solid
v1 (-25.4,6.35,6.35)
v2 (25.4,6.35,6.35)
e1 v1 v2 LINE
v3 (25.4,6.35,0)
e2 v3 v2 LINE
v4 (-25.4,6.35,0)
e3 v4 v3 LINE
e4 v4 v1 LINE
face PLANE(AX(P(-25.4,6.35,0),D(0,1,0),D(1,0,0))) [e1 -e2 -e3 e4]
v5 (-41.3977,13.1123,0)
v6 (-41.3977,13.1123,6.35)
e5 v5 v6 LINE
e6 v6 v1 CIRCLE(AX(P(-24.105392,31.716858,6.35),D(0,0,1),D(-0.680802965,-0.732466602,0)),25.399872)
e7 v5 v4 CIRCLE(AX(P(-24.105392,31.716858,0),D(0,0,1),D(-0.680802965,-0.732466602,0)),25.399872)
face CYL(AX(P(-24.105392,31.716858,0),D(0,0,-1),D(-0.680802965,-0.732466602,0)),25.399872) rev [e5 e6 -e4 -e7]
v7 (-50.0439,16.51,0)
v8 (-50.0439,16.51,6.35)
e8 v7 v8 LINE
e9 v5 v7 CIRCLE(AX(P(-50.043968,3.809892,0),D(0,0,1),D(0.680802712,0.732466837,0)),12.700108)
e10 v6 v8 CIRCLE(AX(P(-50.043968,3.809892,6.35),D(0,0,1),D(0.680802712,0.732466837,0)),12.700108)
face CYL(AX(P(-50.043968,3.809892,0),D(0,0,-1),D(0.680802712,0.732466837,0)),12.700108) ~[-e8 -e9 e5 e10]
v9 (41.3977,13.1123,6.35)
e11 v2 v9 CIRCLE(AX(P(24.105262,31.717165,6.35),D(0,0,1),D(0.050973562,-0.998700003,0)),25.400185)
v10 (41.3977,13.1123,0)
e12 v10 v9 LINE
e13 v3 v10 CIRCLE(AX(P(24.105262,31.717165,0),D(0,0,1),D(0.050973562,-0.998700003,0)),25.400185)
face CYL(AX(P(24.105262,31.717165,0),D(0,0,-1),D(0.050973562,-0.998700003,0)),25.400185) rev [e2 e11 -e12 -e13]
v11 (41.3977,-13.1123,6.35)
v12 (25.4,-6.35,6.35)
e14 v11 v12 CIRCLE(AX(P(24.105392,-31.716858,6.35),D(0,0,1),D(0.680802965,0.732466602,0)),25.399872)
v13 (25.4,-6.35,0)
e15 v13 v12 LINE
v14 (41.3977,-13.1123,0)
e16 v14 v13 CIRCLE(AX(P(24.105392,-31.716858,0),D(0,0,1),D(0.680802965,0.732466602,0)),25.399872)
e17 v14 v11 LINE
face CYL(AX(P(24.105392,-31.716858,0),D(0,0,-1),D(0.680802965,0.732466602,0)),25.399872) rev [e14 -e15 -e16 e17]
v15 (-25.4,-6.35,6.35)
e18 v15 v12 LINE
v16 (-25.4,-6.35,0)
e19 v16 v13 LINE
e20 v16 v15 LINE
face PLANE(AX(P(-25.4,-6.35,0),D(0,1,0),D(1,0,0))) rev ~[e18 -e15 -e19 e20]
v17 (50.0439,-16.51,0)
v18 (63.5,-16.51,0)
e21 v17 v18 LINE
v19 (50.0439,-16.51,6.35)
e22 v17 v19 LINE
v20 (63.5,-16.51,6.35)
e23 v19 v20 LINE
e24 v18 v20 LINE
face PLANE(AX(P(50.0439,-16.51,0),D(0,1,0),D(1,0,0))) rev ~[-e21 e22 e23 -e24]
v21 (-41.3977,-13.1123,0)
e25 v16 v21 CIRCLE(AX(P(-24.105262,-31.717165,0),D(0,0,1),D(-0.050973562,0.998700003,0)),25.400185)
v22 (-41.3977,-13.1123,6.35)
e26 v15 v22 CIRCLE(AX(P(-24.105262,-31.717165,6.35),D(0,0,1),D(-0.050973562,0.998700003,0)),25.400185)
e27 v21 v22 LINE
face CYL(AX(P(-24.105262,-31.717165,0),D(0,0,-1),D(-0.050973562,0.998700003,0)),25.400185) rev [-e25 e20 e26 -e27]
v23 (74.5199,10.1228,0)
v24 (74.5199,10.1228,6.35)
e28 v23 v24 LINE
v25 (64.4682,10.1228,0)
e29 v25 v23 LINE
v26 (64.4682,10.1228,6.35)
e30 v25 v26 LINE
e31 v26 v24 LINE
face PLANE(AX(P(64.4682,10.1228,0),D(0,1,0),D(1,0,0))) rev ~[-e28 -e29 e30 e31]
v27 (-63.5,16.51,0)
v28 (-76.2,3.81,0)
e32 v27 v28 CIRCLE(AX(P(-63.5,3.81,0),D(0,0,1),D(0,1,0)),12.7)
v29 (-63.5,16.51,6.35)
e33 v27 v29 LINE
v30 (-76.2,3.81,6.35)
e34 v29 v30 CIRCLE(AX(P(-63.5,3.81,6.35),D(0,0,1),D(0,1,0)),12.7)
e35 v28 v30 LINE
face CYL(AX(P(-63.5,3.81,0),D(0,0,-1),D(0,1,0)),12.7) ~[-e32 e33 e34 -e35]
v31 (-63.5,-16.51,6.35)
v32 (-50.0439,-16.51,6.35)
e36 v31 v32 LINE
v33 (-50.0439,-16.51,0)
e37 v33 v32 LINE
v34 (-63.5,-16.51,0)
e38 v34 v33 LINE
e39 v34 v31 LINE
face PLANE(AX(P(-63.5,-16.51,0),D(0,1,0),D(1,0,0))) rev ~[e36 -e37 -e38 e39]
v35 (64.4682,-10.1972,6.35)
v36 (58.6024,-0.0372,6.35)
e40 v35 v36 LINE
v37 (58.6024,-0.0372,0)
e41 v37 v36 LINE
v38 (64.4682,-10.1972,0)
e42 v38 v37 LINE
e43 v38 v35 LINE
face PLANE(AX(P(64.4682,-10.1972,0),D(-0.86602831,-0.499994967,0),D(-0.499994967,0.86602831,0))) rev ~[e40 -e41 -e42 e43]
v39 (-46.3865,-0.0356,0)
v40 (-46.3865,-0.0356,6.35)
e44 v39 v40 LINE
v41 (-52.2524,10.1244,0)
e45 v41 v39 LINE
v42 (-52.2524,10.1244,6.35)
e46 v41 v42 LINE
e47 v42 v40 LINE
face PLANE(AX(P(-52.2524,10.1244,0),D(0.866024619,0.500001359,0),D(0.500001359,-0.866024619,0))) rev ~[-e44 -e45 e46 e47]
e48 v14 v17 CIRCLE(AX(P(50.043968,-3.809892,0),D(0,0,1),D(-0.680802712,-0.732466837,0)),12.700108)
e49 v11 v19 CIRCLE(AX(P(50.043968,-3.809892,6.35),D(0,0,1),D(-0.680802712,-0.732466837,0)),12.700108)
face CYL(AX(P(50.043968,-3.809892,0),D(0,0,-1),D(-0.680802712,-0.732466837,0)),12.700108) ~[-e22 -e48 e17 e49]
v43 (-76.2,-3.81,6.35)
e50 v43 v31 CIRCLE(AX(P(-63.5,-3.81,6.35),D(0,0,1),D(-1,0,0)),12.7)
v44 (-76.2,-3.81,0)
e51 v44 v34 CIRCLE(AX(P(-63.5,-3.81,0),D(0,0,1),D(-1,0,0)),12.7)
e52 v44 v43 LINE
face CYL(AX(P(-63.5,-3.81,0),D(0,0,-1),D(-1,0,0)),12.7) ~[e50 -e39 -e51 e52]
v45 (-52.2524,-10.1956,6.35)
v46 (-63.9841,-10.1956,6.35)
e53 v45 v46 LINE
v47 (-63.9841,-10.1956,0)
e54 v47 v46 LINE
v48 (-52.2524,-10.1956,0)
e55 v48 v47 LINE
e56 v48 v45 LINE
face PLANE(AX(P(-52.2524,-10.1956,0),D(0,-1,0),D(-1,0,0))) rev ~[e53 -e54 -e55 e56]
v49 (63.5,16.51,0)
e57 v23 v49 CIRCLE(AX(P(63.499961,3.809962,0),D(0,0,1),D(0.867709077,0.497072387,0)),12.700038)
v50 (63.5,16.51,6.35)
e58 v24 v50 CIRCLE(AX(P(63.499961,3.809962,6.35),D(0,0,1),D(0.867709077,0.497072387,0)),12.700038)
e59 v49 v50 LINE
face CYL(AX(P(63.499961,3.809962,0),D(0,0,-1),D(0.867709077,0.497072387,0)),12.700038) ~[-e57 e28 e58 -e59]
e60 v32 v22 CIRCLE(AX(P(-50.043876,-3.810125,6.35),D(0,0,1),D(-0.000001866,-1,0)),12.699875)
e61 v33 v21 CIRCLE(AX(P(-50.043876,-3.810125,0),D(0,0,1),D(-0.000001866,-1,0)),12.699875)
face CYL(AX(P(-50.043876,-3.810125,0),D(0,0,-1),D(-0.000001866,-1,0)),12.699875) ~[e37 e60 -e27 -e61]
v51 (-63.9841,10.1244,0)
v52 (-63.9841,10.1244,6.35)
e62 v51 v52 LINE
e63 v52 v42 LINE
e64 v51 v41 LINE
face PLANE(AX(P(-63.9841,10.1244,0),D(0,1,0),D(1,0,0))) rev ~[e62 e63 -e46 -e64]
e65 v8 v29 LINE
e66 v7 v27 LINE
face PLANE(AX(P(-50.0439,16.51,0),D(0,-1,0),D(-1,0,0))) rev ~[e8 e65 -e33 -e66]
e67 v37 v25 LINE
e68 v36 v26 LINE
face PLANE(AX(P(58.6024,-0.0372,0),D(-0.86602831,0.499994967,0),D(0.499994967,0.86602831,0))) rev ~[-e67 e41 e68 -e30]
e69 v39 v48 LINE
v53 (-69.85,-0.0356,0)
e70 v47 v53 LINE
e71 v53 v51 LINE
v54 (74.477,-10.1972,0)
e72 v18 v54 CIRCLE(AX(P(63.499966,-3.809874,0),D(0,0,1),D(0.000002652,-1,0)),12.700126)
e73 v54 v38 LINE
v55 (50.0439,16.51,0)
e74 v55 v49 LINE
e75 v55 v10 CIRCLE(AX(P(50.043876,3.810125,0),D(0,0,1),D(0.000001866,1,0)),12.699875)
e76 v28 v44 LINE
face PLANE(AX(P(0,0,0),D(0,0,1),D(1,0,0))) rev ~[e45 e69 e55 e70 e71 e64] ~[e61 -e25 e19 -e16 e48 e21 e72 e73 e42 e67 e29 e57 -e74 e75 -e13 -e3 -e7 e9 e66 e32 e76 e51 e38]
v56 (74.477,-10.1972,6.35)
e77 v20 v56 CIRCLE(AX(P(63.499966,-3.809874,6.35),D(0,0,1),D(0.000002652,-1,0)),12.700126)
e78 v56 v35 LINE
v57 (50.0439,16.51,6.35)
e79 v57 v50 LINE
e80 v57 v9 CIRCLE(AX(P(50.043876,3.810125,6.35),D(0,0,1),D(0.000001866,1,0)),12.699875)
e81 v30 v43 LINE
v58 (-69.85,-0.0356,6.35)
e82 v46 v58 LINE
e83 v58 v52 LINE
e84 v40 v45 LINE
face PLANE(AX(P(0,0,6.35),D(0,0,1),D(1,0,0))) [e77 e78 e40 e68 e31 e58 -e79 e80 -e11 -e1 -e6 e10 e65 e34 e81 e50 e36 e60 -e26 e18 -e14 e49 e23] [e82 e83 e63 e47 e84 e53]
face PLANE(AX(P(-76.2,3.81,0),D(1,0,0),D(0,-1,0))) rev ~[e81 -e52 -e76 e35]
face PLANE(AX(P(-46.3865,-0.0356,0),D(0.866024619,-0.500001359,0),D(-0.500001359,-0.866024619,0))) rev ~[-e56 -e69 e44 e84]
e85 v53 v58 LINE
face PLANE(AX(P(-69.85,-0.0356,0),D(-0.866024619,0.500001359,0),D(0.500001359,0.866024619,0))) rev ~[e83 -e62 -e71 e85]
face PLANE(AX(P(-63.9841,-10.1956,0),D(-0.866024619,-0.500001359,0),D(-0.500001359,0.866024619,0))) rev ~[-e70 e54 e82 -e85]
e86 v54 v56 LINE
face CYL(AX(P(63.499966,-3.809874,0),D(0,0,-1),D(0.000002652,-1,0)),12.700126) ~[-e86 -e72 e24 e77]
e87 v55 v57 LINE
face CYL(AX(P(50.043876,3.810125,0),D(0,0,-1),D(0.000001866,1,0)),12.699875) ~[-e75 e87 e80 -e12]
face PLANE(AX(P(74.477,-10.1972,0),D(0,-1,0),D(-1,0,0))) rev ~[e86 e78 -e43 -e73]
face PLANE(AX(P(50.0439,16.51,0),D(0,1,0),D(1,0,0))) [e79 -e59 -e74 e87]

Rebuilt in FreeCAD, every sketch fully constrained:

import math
import FreeCAD as App
import Part
import Sketcher

V = App.Vector
Q = App.Units.Quantity


def add_polygon(sketch, points):
    """Adds a closed chain of lines whose ends are joined by coincident constraints."""
    first, n = sketch.GeometryCount, len(points)
    for a, b in zip(points, points[1:] + points[:1]):
        sketch.addGeometry(Part.LineSegment(App.Vector(*a, 0), App.Vector(*b, 0)), False)
    for i in range(n):
        sketch.addConstraint(Sketcher.Constraint("Coincident", first + i, 2, first + (i + 1) % n, 1))

doc = App.newDocument("Part")
params = doc.addObject("Spreadsheet::Sheet", "Params")
for row, (alias, value) in enumerate([
    ("sketch1_radius", "1 in"),
    ("sketch1_radius2", "0.5 in"),
    ("sketch1_width", "2 in"),
    ("pad1_length", "0.25 in"),
], start=1):
    params.set(f"A{row}", alias)
    params.set(f"B{row}", "=" + value)
    params.setAlias(f"B{row}", alias)

body = doc.addObject("PartDesign::Body", "Body")

# Sketch on XY plane
sketch1 = body.newObject("Sketcher::SketchObject", "Sketch")
sketch1.AttachmentSupport = (doc.getObject("XY_Plane"), [""])
sketch1.MapMode = "FlatFace"
sketch1.addGeometry(Part.ArcOfCircle(Part.Circle(V(-50.0439, 3.81, 0), V(0, 0, 1), 12.699983), math.radians(47.093491), math.radians(90)), False)  # 0
sketch1.addGeometry(Part.LineSegment(V(-50.0439, 16.51, 0), V(-63.5, 16.51, 0)), False)  # 1
sketch1.addGeometry(Part.ArcOfCircle(Part.Circle(V(-63.5, 3.81, 0), V(0, 0, 1), 12.7), math.radians(90), math.radians(180)), False)  # 2
sketch1.addGeometry(Part.LineSegment(V(-76.2, 3.81, 0), V(-76.2, -3.81, 0)), False)  # 3
sketch1.addGeometry(Part.ArcOfCircle(Part.Circle(V(-63.5, -3.81, 0), V(0, 0, 1), 12.7), math.radians(180), math.radians(270)), False)  # 4
sketch1.addGeometry(Part.LineSegment(V(-63.5, -16.51, 0), V(-50.0439, -16.51, 0)), False)  # 5
sketch1.addGeometry(Part.ArcOfCircle(Part.Circle(V(-50.0439, -3.81, 0), V(0, 0, 1), 12.7), math.radians(-90), math.radians(-47.093491)), False)  # 6
sketch1.addGeometry(Part.ArcOfCircle(Part.Circle(V(-24.1053, -31.717, 0), V(0, 0, 1), 25.400018), math.radians(92.92177), math.radians(132.906355)), False)  # 7
sketch1.addGeometry(Part.LineSegment(V(-25.4, -6.35, 0), V(25.4, -6.35, 0)), False)  # 8
sketch1.addGeometry(Part.ArcOfCircle(Part.Circle(V(24.1053, -31.717, 0), V(0, 0, 1), 25.400039), math.radians(47.093645), math.radians(87.07823)), False)  # 9
sketch1.addGeometry(Part.ArcOfCircle(Part.Circle(V(50.0439, -3.81, 0), V(0, 0, 1), 12.699983), math.radians(-132.906509), math.radians(-90)), False)  # 10
sketch1.addGeometry(Part.LineSegment(V(50.0439, -16.51, 0), V(63.5, -16.51, 0)), False)  # 11
sketch1.addGeometry(Part.ArcOfCircle(Part.Circle(V(63.5, -3.81, 0), V(0, 0, 1), 12.7), math.radians(-90), math.radians(-30.193892)), False)  # 12
sketch1.addGeometry(Part.LineSegment(V(74.477, -10.1972, 0), V(64.4682, -10.1972, 0)), False)  # 13
sketch1.addGeometry(Part.LineSegment(V(64.4682, -10.1972, 0), V(58.6024, -0.0372, 0)), False)  # 14
sketch1.addGeometry(Part.LineSegment(V(58.6024, -0.0372, 0), V(64.4682, 10.1228, 0)), False)  # 15
sketch1.addGeometry(Part.LineSegment(V(64.4682, 10.1228, 0), V(74.5199, 10.1228, 0)), False)  # 16
sketch1.addGeometry(Part.ArcOfCircle(Part.Circle(V(63.5, 3.81, 0), V(0, 0, 1), 12.699986), math.radians(29.806435), math.radians(90)), False)  # 17
sketch1.addGeometry(Part.LineSegment(V(63.5, 16.51, 0), V(50.0439, 16.51, 0)), False)  # 18
sketch1.addGeometry(Part.ArcOfCircle(Part.Circle(V(50.0439, 3.81, 0), V(0, 0, 1), 12.7), math.radians(90), math.radians(132.906509)), False)  # 19
sketch1.addGeometry(Part.ArcOfCircle(Part.Circle(V(24.1053, 31.717, 0), V(0, 0, 1), 25.400018), math.radians(-87.07823), math.radians(-47.093645)), False)  # 20
sketch1.addGeometry(Part.LineSegment(V(25.4, 6.35, 0), V(-25.4, 6.35, 0)), False)  # 21
sketch1.addGeometry(Part.ArcOfCircle(Part.Circle(V(-24.1053, 31.717, 0), V(0, 0, 1), 25.400039), math.radians(-132.906355), math.radians(-92.92177)), False)  # 22
add_polygon(sketch1, [(-63.9841, 10.1244), (-52.2524, 10.1244), (-46.3865, -0.0356), (-52.2524, -10.1956), (-63.9841, -10.1956), (-69.85, -0.0356)])  # lines 23-28
sketch1.addConstraint(Sketcher.Constraint("Tangent", 0, 2, 1, 1))
sketch1.addConstraint(Sketcher.Constraint("Tangent", 1, 2, 2, 1))
sketch1.addConstraint(Sketcher.Constraint("Tangent", 2, 2, 3, 1))
sketch1.addConstraint(Sketcher.Constraint("Tangent", 3, 2, 4, 1))
sketch1.addConstraint(Sketcher.Constraint("Tangent", 4, 2, 5, 1))
sketch1.addConstraint(Sketcher.Constraint("Tangent", 5, 2, 6, 1))
sketch1.addConstraint(Sketcher.Constraint("Tangent", 6, 2, 7, 2))
sketch1.addConstraint(Sketcher.Constraint("Coincident", 7, 1, 8, 1))
sketch1.addConstraint(Sketcher.Constraint("Coincident", 8, 2, 9, 2))
sketch1.addConstraint(Sketcher.Constraint("Tangent", 9, 1, 10, 1))
sketch1.addConstraint(Sketcher.Constraint("Tangent", 10, 2, 11, 1))
sketch1.addConstraint(Sketcher.Constraint("Tangent", 11, 2, 12, 1))
sketch1.addConstraint(Sketcher.Constraint("Coincident", 12, 2, 13, 1))
sketch1.addConstraint(Sketcher.Constraint("Coincident", 13, 2, 14, 1))
sketch1.addConstraint(Sketcher.Constraint("Coincident", 14, 2, 15, 1))
sketch1.addConstraint(Sketcher.Constraint("Coincident", 15, 2, 16, 1))
sketch1.addConstraint(Sketcher.Constraint("Coincident", 16, 2, 17, 1))
sketch1.addConstraint(Sketcher.Constraint("Tangent", 17, 2, 18, 1))
sketch1.addConstraint(Sketcher.Constraint("Tangent", 18, 2, 19, 1))
sketch1.addConstraint(Sketcher.Constraint("Tangent", 19, 2, 20, 2))
sketch1.addConstraint(Sketcher.Constraint("Coincident", 20, 1, 21, 1))
sketch1.addConstraint(Sketcher.Constraint("Coincident", 21, 2, 22, 2))
sketch1.addConstraint(Sketcher.Constraint("Tangent", 22, 1, 0, 1))
sketch1.addConstraint(Sketcher.Constraint("Horizontal", 1))
sketch1.addConstraint(Sketcher.Constraint("Vertical", 3))
sketch1.addConstraint(Sketcher.Constraint("Horizontal", 5))
sketch1.addConstraint(Sketcher.Constraint("Horizontal", 8))
sketch1.addConstraint(Sketcher.Constraint("Horizontal", 11))
sketch1.addConstraint(Sketcher.Constraint("Horizontal", 13))
sketch1.addConstraint(Sketcher.Constraint("Horizontal", 16))
sketch1.addConstraint(Sketcher.Constraint("Horizontal", 18))
sketch1.addConstraint(Sketcher.Constraint("Horizontal", 21))
sketch1.addConstraint(Sketcher.Constraint("Horizontal", 23))
sketch1.addConstraint(Sketcher.Constraint("Horizontal", 26))
sketch1.addConstraint(Sketcher.Constraint("Equal", 0, 2))
sketch1.addConstraint(Sketcher.Constraint("Equal", 2, 4))
sketch1.addConstraint(Sketcher.Constraint("Equal", 4, 6))
sketch1.addConstraint(Sketcher.Constraint("Equal", 7, 9))
sketch1.addConstraint(Sketcher.Constraint("Equal", 6, 10))
sketch1.addConstraint(Sketcher.Constraint("Equal", 10, 12))
sketch1.addConstraint(Sketcher.Constraint("Equal", 12, 17))
sketch1.addConstraint(Sketcher.Constraint("Equal", 17, 19))
sketch1.addConstraint(Sketcher.Constraint("Equal", 9, 20))
sketch1.addConstraint(Sketcher.Constraint("Equal", 20, 22))
sketch1.addConstraint(Sketcher.Constraint("Symmetric", 0, 3, 10, 3, -1, 1))
sketch1.addConstraint(Sketcher.Constraint("Symmetric", 4, 3, 17, 3, -1, 1))
sketch1.addConstraint(Sketcher.Constraint("Symmetric", 7, 3, 20, 3, -1, 1))
sketch1.addConstraint(Sketcher.Constraint("Symmetric", 8, 2, 21, 2, -1, 1))
sketch1.addConstraint(Sketcher.Constraint("Symmetric", 7, 3, 9, 3, -2))
sketch1.addConstraint(Sketcher.Constraint("Symmetric", 4, 3, 12, 3, -2))
sketch1.addConstraint(Sketcher.Constraint("Parallel", 14, 24))
sketch1.addConstraint(Sketcher.Constraint("Parallel", 15, 25))
sketch1.addConstraint(Sketcher.Constraint("Parallel", 24, 27))
sketch1.addConstraint(Sketcher.Constraint("Parallel", 25, 28))
sketch1.addConstraint(Sketcher.Constraint("Horizontal", 24, 2, 27, 2))
sketch1.addConstraint(Sketcher.Constraint("Vertical", 13, 2, 15, 2))
sketch1.addConstraint(Sketcher.Constraint("Vertical", 23, 2, 25, 2))
sketch1.addConstraint(Sketcher.Constraint("Vertical", 26, 2, 28, 2))
sketch1.addConstraint(Sketcher.Constraint("Equal", 15, 24))
sketch1.addConstraint(Sketcher.Constraint("Radius", 7, Q("1 in")))
sketch1.addConstraint(Sketcher.Constraint("Radius", 0, Q("0.5 in")))
sketch1.addConstraint(Sketcher.Constraint("DistanceX", 8, 1, 8, 2, Q("2 in")))
sketch1.addConstraint(Sketcher.Constraint("DistanceY", 6, 3, 0, 2, Q("0.8 in")))
sketch1.addConstraint(Sketcher.Constraint("DistanceY", 12, 2, 16, 2, Q("0.8 in")))
sketch1.addConstraint(Sketcher.Constraint("DistanceY", 8, 2, 20, 1, Q("0.5 in")))
sketch1.addConstraint(Sketcher.Constraint("DistanceX", 27, 2, 4, 3, Q("0.25 in")))
sketch1.addConstraint(Sketcher.Constraint("DistanceX", 2, 2, -1, 1, Q("3 in")))
sketch1.addConstraint(Sketcher.Constraint("Angle", 14, Q("119.9997 deg")))
sketch1.addConstraint(Sketcher.Constraint("DistanceX", 6, 3, 24, 2, Q("0.144 in")))
sketch1.addConstraint(Sketcher.Constraint("DistanceX", 1, 2, 1, 1, 13.456))
sketch1.addConstraint(Sketcher.Constraint("DistanceX", 13, 2, 13, 1, 10.0088))
sketch1.addConstraint(Sketcher.Constraint("DistanceX", 16, 1, 16, 2, 10.0517))
sketch1.addConstraint(Sketcher.Constraint("DistanceY", -1, 1, 23, 2, Q("0.3986 in")))
sketch1.setExpression("Constraints[65]", "Params.sketch1_radius")
sketch1.setExpression("Constraints[66]", "Params.sketch1_radius2")
sketch1.setExpression("Constraints[67]", "Params.sketch1_width")
pad1 = body.newObject("PartDesign::Pad", "Pad")
pad1.Profile = sketch1
pad1.setExpression("Length", "Params.pad1_length")

doc.recompute()
